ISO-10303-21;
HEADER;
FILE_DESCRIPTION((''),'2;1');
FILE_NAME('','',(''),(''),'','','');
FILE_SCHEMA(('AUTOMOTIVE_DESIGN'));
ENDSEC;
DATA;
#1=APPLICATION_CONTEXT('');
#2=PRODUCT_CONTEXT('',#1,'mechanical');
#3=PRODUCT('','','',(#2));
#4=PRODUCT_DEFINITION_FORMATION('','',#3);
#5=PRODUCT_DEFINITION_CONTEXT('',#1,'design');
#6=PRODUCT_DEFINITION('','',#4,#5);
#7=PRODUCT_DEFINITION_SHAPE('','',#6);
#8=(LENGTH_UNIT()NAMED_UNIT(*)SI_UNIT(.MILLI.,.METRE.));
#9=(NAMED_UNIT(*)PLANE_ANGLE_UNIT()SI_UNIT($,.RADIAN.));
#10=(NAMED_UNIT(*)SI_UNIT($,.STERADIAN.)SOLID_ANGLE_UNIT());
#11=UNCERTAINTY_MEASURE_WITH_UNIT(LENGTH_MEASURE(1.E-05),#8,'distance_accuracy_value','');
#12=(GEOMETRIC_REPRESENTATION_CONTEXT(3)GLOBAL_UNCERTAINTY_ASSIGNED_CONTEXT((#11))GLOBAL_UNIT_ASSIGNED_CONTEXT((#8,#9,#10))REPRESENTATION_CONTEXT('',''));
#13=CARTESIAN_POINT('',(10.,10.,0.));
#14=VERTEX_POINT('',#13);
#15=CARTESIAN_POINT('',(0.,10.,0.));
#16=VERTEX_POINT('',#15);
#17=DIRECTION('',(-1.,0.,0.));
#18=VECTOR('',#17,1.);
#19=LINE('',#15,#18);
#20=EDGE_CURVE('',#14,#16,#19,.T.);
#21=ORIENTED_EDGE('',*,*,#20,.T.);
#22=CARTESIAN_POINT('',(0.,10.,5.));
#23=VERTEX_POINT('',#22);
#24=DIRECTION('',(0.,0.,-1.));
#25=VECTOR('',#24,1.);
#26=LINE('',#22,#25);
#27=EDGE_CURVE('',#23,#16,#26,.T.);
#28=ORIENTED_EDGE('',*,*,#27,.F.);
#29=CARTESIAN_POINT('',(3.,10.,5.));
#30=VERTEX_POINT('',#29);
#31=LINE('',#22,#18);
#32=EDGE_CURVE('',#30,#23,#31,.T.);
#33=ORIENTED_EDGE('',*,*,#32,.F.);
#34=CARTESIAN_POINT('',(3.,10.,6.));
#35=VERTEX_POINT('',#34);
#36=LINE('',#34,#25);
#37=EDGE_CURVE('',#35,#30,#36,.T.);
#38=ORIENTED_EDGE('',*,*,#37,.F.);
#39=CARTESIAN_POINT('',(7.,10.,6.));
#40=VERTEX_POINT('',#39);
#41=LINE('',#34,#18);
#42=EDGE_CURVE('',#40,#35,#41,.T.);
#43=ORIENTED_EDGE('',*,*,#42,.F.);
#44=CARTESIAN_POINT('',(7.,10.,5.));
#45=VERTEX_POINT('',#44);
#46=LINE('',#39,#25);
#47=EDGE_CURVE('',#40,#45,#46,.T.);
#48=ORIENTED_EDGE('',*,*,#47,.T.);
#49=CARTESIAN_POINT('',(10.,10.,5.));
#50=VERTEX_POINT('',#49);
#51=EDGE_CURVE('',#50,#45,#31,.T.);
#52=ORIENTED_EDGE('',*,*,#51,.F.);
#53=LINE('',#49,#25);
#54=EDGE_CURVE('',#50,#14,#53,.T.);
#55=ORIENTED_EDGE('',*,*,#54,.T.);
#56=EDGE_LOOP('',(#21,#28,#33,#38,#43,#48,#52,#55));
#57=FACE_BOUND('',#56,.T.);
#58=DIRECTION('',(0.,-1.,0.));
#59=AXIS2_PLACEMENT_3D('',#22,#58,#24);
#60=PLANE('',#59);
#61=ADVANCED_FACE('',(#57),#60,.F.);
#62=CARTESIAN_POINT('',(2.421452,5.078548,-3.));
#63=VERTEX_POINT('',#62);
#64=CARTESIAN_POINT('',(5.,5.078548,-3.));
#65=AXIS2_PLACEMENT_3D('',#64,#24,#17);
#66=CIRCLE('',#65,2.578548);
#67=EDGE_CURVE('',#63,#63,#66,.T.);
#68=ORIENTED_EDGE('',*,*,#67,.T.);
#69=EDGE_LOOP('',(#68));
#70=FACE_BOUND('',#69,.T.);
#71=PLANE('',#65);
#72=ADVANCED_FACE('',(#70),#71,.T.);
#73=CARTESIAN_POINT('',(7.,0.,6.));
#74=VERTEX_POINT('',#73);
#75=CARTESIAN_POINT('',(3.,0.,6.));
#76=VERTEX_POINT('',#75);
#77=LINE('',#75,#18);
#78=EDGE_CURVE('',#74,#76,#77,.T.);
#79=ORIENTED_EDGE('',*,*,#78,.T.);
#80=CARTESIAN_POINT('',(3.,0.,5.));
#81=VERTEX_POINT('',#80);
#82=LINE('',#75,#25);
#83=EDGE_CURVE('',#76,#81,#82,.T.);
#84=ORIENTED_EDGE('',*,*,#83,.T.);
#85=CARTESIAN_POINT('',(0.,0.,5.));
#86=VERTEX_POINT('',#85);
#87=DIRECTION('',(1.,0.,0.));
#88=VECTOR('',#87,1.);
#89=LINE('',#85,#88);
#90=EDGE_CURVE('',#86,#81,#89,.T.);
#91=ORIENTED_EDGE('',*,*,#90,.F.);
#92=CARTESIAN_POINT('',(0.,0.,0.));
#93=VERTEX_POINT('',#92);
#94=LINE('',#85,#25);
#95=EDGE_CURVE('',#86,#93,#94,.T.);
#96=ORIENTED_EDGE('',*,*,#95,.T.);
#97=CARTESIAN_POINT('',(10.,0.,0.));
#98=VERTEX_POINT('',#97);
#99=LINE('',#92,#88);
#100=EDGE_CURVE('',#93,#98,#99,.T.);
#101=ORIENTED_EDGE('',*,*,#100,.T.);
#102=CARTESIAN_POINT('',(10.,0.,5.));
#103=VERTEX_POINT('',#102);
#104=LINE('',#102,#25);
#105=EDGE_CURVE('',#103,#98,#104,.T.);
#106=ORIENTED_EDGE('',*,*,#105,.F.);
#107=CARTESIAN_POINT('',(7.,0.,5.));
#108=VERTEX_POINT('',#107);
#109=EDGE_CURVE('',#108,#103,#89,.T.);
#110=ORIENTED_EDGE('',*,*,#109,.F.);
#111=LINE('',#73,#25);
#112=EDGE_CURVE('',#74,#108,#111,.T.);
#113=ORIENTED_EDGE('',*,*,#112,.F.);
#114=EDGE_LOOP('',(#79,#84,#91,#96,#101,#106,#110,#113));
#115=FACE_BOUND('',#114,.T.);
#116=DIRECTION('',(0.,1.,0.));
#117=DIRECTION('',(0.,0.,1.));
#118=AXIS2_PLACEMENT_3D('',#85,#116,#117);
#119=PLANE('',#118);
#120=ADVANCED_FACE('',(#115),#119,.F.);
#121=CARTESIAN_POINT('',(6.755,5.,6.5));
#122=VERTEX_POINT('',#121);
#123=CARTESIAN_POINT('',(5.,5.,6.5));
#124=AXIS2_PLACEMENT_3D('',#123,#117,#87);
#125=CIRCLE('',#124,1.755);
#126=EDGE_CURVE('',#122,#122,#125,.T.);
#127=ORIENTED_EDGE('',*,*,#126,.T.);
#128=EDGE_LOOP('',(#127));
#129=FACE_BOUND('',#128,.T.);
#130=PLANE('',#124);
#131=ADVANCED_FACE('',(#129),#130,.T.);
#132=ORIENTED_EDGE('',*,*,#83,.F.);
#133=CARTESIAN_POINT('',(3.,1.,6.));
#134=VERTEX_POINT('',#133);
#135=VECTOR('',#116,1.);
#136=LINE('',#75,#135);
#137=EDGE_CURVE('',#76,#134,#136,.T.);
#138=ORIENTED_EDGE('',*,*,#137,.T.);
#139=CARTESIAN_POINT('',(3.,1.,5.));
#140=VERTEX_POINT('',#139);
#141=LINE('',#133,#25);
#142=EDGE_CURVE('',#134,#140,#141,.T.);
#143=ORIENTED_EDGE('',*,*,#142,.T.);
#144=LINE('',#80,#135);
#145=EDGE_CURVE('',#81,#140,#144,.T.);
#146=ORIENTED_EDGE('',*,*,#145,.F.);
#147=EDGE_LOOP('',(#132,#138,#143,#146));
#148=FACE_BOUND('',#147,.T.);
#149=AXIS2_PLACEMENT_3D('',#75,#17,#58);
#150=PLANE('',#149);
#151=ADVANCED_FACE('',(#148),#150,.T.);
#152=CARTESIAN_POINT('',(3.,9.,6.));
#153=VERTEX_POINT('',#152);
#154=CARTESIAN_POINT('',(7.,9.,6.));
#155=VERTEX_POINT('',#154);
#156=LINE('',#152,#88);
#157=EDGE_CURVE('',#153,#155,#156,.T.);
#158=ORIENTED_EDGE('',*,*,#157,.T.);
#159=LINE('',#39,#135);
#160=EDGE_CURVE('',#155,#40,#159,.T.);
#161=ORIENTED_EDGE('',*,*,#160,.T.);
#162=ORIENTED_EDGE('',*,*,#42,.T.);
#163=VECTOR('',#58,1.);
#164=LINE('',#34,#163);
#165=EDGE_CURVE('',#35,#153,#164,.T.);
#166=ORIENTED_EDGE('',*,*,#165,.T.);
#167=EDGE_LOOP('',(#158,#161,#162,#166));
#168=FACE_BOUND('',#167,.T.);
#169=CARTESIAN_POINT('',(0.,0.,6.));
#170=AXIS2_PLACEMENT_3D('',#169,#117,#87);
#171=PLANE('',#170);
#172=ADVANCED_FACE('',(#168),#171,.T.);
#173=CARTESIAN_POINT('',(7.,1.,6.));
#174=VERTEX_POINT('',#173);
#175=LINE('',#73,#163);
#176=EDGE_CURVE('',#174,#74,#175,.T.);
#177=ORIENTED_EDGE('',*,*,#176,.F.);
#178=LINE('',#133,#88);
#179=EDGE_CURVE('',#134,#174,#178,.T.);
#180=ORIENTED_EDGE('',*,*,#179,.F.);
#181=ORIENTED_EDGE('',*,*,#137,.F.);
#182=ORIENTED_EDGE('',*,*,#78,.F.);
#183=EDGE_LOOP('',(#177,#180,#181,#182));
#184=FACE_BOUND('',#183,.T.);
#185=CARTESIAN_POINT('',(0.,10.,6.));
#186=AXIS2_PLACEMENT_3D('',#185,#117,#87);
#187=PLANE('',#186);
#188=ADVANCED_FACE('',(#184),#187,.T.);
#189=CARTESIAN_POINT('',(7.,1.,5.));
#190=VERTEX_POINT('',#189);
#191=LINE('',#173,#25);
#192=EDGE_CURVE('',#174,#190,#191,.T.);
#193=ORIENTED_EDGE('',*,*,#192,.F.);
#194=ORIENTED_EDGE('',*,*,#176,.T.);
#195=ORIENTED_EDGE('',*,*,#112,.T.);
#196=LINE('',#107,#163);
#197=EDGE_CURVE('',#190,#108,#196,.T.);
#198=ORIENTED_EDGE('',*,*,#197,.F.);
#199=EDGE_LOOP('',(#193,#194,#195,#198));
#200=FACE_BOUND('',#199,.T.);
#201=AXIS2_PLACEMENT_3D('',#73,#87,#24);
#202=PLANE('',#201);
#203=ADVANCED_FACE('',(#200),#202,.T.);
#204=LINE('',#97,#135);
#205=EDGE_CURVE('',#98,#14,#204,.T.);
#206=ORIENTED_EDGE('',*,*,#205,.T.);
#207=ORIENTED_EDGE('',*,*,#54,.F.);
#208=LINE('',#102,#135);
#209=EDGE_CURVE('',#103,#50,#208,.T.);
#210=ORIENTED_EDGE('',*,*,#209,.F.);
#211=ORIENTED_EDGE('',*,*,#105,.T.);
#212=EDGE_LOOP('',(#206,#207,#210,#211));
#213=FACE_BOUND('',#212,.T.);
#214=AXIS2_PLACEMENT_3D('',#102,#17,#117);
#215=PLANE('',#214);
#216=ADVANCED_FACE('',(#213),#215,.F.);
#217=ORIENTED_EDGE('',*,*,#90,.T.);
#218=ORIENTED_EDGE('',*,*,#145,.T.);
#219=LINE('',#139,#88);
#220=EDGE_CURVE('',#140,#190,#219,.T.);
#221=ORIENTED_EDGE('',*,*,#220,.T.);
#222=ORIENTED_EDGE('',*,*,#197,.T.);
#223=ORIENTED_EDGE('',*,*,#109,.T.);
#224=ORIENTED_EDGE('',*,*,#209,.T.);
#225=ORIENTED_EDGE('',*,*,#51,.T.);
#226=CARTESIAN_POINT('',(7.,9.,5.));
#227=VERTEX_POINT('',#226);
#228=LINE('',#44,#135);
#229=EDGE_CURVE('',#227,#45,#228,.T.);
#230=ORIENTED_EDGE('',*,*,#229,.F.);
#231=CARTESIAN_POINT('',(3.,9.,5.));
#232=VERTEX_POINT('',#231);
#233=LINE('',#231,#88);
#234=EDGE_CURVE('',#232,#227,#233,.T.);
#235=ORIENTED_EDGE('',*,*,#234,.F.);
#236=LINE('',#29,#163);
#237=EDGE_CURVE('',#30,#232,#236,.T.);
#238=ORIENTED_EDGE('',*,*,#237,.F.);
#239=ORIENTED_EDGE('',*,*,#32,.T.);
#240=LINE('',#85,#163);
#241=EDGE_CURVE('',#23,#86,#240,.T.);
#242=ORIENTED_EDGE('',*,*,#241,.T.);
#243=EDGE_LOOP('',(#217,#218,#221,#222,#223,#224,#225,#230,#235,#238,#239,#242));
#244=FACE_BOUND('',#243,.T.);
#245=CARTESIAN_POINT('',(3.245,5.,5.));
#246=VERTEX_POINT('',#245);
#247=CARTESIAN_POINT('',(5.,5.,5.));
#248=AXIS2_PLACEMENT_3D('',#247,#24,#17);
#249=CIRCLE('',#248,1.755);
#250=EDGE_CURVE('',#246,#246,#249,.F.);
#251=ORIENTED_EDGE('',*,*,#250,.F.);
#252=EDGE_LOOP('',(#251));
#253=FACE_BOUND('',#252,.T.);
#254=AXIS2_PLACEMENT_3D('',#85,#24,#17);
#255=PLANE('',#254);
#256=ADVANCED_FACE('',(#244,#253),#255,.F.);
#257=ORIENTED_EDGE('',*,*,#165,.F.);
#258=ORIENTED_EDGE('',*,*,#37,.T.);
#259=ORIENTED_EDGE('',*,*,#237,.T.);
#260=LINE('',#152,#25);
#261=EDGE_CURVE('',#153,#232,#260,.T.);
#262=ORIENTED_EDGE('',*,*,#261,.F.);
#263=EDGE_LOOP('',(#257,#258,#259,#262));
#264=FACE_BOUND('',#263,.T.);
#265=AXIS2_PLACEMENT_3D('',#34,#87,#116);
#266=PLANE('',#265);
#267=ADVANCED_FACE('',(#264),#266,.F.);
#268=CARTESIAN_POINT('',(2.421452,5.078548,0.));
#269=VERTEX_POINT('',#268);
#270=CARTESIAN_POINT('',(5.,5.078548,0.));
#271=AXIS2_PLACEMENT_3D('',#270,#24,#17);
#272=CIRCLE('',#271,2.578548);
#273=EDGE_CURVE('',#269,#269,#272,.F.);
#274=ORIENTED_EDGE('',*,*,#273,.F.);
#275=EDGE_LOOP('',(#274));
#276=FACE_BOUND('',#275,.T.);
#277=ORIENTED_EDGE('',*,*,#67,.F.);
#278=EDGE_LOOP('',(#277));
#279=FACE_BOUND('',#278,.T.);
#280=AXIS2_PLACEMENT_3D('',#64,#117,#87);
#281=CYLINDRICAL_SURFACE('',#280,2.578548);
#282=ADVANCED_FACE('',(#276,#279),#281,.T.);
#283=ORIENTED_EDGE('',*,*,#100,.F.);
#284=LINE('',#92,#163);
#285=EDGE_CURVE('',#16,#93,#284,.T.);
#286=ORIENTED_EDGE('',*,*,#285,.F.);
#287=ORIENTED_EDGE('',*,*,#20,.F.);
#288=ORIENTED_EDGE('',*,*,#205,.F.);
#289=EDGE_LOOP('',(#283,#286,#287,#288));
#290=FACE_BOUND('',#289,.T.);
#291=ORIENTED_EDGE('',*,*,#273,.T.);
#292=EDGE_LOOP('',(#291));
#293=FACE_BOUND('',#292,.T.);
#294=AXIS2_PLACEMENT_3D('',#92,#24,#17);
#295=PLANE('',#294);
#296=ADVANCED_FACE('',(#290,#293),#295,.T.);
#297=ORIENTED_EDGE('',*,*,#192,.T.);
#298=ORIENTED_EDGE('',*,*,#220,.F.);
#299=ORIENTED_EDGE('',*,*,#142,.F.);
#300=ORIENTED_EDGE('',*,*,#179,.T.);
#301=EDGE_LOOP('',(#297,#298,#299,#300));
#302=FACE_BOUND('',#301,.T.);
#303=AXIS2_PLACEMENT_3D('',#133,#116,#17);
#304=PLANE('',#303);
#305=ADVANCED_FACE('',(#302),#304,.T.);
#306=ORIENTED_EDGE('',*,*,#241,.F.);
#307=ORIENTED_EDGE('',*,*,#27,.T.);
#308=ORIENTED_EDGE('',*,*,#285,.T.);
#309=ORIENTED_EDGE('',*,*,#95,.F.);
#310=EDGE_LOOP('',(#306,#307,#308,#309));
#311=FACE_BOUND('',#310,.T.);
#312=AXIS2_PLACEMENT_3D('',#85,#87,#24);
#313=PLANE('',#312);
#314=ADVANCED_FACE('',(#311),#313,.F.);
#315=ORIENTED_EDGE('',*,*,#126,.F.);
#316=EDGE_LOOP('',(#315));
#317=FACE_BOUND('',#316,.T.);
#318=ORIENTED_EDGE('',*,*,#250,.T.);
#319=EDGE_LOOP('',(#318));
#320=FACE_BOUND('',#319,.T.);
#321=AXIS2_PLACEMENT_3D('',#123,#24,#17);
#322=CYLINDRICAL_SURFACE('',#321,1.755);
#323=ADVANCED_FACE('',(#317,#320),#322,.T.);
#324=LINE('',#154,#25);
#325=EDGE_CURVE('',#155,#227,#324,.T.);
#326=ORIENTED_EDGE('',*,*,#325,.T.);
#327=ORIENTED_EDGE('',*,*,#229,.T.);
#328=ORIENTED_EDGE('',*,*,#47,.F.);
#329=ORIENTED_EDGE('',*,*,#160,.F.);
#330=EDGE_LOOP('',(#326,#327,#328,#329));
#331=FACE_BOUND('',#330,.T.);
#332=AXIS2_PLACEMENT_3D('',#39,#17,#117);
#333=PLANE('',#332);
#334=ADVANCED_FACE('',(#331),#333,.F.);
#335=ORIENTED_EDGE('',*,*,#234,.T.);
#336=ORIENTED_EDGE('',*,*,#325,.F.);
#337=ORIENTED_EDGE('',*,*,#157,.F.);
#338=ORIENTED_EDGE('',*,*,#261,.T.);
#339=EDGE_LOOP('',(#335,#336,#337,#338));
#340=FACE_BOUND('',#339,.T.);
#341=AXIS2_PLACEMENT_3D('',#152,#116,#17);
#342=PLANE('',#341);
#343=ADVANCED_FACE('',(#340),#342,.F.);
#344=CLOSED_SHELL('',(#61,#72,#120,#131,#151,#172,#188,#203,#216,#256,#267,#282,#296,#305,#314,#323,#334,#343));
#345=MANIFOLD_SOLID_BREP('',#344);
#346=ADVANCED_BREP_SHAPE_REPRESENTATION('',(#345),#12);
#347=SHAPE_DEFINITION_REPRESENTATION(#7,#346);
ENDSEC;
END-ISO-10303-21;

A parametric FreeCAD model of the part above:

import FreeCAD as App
import Part
import Sketcher

V = App.Vector
Q = App.Units.Quantity

doc = App.newDocument("Part")
body = doc.addObject("PartDesign::Body", "Body")

# Sketch on XY plane
sketch1 = doc.addObject("Sketcher::SketchObject", "Sketch")
body.addObject(sketch1)
sketch1.AttachmentSupport = (doc.XY_Plane, [""])
sketch1.MapMode = "FlatFace"
sketch1.addGeometry([
    Part.LineSegment(V(0, 10, 0), V(0, 0, 0)),
    Part.LineSegment(V(0, 0, 0), V(10, 0, 0)),
    Part.LineSegment(V(10, 0, 0), V(10, 10, 0)),
    Part.LineSegment(V(10, 10, 0), V(0, 10, 0)),
], False)
sketch1.addConstraint([
    Sketcher.Constraint("Coincident", 0, 2, 1, 1),
    Sketcher.Constraint("Coincident", 1, 2, 2, 1),
    Sketcher.Constraint("Coincident", 2, 2, 3, 1),
    Sketcher.Constraint("Coincident", 3, 2, 0, 1),
    Sketcher.Constraint("Vertical", 0),
    Sketcher.Constraint("Horizontal", 1),
    Sketcher.Constraint("Vertical", 2),
    Sketcher.Constraint("Horizontal", 3),
    Sketcher.Constraint("Coincident", 0, 2, -1, 1),
    Sketcher.Constraint("Equal", 3, 0),
    Sketcher.Constraint("DistanceX", 1, 1, 1, 2, Q("10 mm")),
])
pad1 = doc.addObject("PartDesign::Pad", "Pad")
body.addObject(pad1)
pad1.Profile = sketch1
pad1.Length = 5

# Sketch on XY plane
sketch2 = doc.addObject("Sketcher::SketchObject", "Sketch001")
body.addObject(sketch2)
sketch2.AttachmentSupport = (doc.XY_Plane, [""])
sketch2.MapMode = "FlatFace"
sketch2.addGeometry(Part.Circle(V(5, 5, 0), V(0, 0, 1), 2.5), False)
sketch2.addConstraint([
    Sketcher.Constraint("Diameter", 0, Q("5 mm")),
    Sketcher.Constraint("DistanceX", -1, 1, 0, 3, Q("5 mm")),
    Sketcher.Constraint("DistanceY", -1, 1, 0, 3, Q("5 mm")),
])
pocket1 = doc.addObject("PartDesign::Pocket", "Pocket")
body.addObject(pocket1)
pocket1.Profile = sketch2
pocket1.Length = 4
pocket1.Reversed = True

# Sketch on XY plane
sketch3 = doc.addObject("Sketcher::SketchObject", "Sketch002")
body.addObject(sketch3)
sketch3.AttachmentSupport = (doc.XY_Plane, [""])
sketch3.MapMode = "FlatFace"
sketch3.AttachmentOffset = App.Placement(V(0, 0, 4), App.Rotation())
sketch3.addGeometry(Part.Circle(V(5, 5, 0), V(0, 0, 1), 1.8), False)
sketch3.addConstraint([
    Sketcher.Constraint("Diameter", 0, Q("3.51 mm")),
    Sketcher.Constraint("DistanceX", -1, 1, 0, 3, Q("5 mm")),
    Sketcher.Constraint("DistanceY", -1, 1, 0, 3, Q("5 mm")),
])
pocket2 = doc.addObject("PartDesign::Pocket", "Pocket001")
body.addObject(pocket2)
pocket2.Profile = sketch3
pocket2.Length = 1
pocket2.Reversed = True

# Sketch on XY plane
sketch4 = doc.addObject("Sketcher::SketchObject", "Sketch003")
body.addObject(sketch4)
sketch4.AttachmentSupport = (doc.XY_Plane, [""])
sketch4.MapMode = "FlatFace"
sketch4.AttachmentOffset = App.Placement(V(0, 0, 4), App.Rotation())
sketch4.addGeometry(Part.Circle(V(5, 5.1, 0), V(0, 0, 1), 2.6), False)
sketch4.addConstraint([
    Sketcher.Constraint("DistanceX", -1, 1, 0, 3, Q("5 mm")),
    Sketcher.Constraint("Diameter", 0, Q("5.157097 mm")),
    Sketcher.Constraint("DistanceY", -1, 1, 0, 3, Q("5.078548 mm")),
])
pad2 = doc.addObject("PartDesign::Pad", "Pad001")
body.addObject(pad2)
pad2.Profile = sketch4
pad2.Length = 7
pad2.Reversed = True

# Sketch on XY plane
sketch5 = doc.addObject("Sketcher::SketchObject", "Sketch004")
body.addObject(sketch5)
sketch5.AttachmentSupport = (doc.XY_Plane, [""])
sketch5.MapMode = "FlatFace"
sketch5.AttachmentOffset = App.Placement(V(0, 0, 4), App.Rotation())
sketch5.addGeometry(Part.Circle(V(5, 5, 0), V(0, 0, 1), 1.8), False)
sketch5.addConstraint([
    Sketcher.Constraint("Diameter", 0, Q("3.51 mm")),
    Sketcher.Constraint("DistanceX", -1, 1, 0, 3, Q("5 mm")),
    Sketcher.Constraint("DistanceY", -1, 1, 0, 3, Q("5 mm")),
])
pad3 = doc.addObject("PartDesign::Pad", "Pad002")
body.addObject(pad3)
pad3.Profile = sketch5
pad3.Length = 2.5

# Sketch on XY plane
sketch6 = doc.addObject("Sketcher::SketchObject", "Sketch005")
body.addObject(sketch6)
sketch6.AttachmentSupport = (doc.XY_Plane, [""])
sketch6.MapMode = "FlatFace"
sketch6.AttachmentOffset = App.Placement(V(0, 0, 5), App.Rotation())
sketch6.addGeometry([
    Part.LineSegment(V(3, 10, 0), V(3, 9, 0)),
    Part.LineSegment(V(3, 9, 0), V(7, 9, 0)),
    Part.LineSegment(V(7, 9, 0), V(7, 10, 0)),
    Part.LineSegment(V(7, 10, 0), V(3, 10, 0)),
], False)
sketch6.addConstraint([
    Sketcher.Constraint("Coincident", 0, 2, 1, 1),
    Sketcher.Constraint("Coincident", 1, 2, 2, 1),
    Sketcher.Constraint("Coincident", 2, 2, 3, 1),
    Sketcher.Constraint("Coincident", 3, 2, 0, 1),
    Sketcher.Constraint("Vertical", 0),
    Sketcher.Constraint("Horizontal", 1),
    Sketcher.Constraint("Vertical", 2),
    Sketcher.Constraint("Horizontal", 3),
    Sketcher.Constraint("DistanceX", 1, 1, 1, 2, Q("4 mm")),
    Sketcher.Constraint("DistanceY", 0, 2, 0, 1, Q("1 mm")),
    Sketcher.Constraint("DistanceX", -1, 1, 0, 2, Q("3 mm")),
    Sketcher.Constraint("DistanceY", -1, 1, 0, 2, Q("9 mm")),
])
pad4 = doc.addObject("PartDesign::Pad", "Pad003")
body.addObject(pad4)
pad4.Profile = sketch6
pad4.Length = 1
doc.recompute()

datumplane = doc.addObject("PartDesign::Plane", "DatumPlane")
body.addObject(datumplane)
datumplane.AttachmentSupport = (doc.XZ_Plane, [""])
datumplane.MapMode = "FlatFace"
datumplane.AttachmentOffset = App.Placement(V(0, 0, -5), App.Rotation())
mirrored = doc.addObject("PartDesign::Mirrored", "Mirrored")
body.addObject(mirrored)
mirrored.Originals = [pad4]
mirrored.MirrorPlane = (datumplane, [""])
body.Tip = mirrored

doc.recompute()
